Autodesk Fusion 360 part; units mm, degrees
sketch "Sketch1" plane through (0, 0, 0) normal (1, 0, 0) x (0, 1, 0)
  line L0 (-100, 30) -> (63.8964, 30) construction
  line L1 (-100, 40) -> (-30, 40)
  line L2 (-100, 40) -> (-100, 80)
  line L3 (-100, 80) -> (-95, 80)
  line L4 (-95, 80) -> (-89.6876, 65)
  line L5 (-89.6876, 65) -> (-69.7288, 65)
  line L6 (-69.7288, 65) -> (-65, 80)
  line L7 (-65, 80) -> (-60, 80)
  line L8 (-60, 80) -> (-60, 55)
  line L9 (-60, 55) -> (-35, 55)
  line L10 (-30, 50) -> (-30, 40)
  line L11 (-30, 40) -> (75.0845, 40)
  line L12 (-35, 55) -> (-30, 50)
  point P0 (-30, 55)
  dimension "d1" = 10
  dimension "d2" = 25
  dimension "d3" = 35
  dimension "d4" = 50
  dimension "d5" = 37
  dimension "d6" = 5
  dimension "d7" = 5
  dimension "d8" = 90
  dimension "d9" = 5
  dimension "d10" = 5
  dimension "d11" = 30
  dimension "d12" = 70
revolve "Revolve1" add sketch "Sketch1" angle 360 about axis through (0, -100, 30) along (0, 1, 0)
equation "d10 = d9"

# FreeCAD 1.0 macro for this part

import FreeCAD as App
import Part
import Sketcher
Q = App.Units.Quantity


def add_polygon(sketch, points):
    """Adds a closed chain of lines whose ends are joined by coincident constraints."""
    first, n = sketch.GeometryCount, len(points)
    for a, b in zip(points, points[1:] + points[:1]):
        sketch.addGeometry(Part.LineSegment(App.Vector(*a, 0), App.Vector(*b, 0)), False)
    for i in range(n):
        sketch.addConstraint(Sketcher.Constraint("Coincident", first + i, 2, first + (i + 1) % n, 1))

doc = App.newDocument("Part")
body = doc.addObject("PartDesign::Body", "Body")

sketch1 = body.newObject("Sketcher::SketchObject", "Sketch")
sketch1.AttachmentSupport = (doc.getObject("YZ_Plane"), [""])
sketch1.MapMode = "FlatFace"
add_polygon(sketch1, [(-100, 80), (-100, 40), (-30, 40), (-30, 50), (-35, 55), (-60, 55), (-60, 80), (-65, 80), (-70, 65), (-90, 65), (-95, 80)])
sketch1.addGeometry(Part.LineSegment(App.Vector(-100, 30, 0), App.Vector(-30, 30, 0)), True)
sketch1.addConstraint([
    Sketcher.Constraint("Vertical", 0),
    Sketcher.Constraint("Horizontal", 1),
    Sketcher.Constraint("Vertical", 2),
    Sketcher.Constraint("Horizontal", 4),
    Sketcher.Constraint("Vertical", 5),
    Sketcher.Constraint("Horizontal", 6),
    Sketcher.Constraint("Horizontal", 8),
    Sketcher.Constraint("Horizontal", 10),
    Sketcher.Constraint("Horizontal", 11),
    Sketcher.Constraint("Horizontal", 6, 2, 9, 2),
    Sketcher.Constraint("Vertical", 10, 2, 11, 1),
    Sketcher.Constraint("Vertical", 2, 2, 11, 2),
    Sketcher.Constraint("Equal", 6, 10),
    Sketcher.Constraint("Equal", 4, 5),
    Sketcher.Constraint("DistanceX", 1, 1, 1, 2, Q("70 mm")),
    Sketcher.Constraint("DistanceX", 4, 2, 4, 1, Q("25 mm")),
    Sketcher.Constraint("DistanceX", 6, 2, 6, 1, Q("5 mm")),
    Sketcher.Constraint("DistanceY", 2, 1, 2, 2, Q("10 mm")),
    Sketcher.Constraint("DistanceX", 1, 2, -1, 1, Q("30 mm")),
    Sketcher.Constraint("DistanceY", -1, 1, 2, 2, Q("50 mm")),
    Sketcher.Constraint("DistanceX", 3, 2, -1, 1, Q("35 mm")),
    Sketcher.Constraint("DistanceY", -1, 1, 11, 1, Q("30 mm")),
    Sketcher.Constraint("DistanceY", 2, 2, 3, 2, Q("5 mm")),
    Sketcher.Constraint("DistanceY", 4, 2, 7, 2, Q("10 mm")),
    Sketcher.Constraint("Distance", 9, Q("15.913 mm")),
    Sketcher.Constraint("DistanceX", 8, 2, 8, 1, Q("19.9588 mm")),
])
revolution = body.newObject("PartDesign::Revolution", "Revolution")
revolution.Profile = sketch1
revolution.ReferenceAxis = (sketch1, ["Axis0"])
revolution.Angle = 360

doc.recompute()
